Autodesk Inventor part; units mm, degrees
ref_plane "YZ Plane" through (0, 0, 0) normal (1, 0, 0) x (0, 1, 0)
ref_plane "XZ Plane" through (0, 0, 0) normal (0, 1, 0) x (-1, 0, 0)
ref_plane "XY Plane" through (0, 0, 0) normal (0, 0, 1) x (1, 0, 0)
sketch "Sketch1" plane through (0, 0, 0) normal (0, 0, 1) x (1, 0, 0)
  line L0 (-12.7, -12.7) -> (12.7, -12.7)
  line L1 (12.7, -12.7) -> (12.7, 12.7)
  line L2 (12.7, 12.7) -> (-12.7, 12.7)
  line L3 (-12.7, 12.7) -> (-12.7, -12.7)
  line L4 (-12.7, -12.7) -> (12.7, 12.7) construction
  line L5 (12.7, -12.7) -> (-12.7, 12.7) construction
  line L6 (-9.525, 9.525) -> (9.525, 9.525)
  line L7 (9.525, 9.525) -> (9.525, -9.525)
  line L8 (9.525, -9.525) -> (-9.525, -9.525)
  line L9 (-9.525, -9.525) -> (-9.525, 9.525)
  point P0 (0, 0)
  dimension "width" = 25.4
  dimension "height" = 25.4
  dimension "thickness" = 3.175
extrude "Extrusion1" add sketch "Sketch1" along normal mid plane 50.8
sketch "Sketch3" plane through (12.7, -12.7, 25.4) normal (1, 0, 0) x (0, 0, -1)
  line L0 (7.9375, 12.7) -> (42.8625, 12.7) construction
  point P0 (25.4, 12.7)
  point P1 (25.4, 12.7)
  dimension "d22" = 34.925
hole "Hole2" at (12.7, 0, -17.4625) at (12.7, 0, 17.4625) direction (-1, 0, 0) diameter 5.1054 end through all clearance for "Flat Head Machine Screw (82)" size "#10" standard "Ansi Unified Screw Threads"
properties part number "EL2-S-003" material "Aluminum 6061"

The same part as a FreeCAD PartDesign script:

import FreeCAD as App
import Part
import Sketcher
Q = App.Units.Quantity


def add_polygon(sketch, points):
    """Adds a closed chain of lines whose ends are joined by coincident constraints."""
    first, n = sketch.GeometryCount, len(points)
    for a, b in zip(points, points[1:] + points[:1]):
        sketch.addGeometry(Part.LineSegment(App.Vector(*a, 0), App.Vector(*b, 0)), False)
    for i in range(n):
        sketch.addConstraint(Sketcher.Constraint("Coincident", first + i, 2, first + (i + 1) % n, 1))

doc = App.newDocument("Part")
body = doc.addObject("PartDesign::Body", "Body")

# Sketch on XY plane
sketch1 = body.newObject("Sketcher::SketchObject", "Sketch")
sketch1.AttachmentSupport = (doc.getObject("XY_Plane"), [""])
sketch1.MapMode = "FlatFace"
add_polygon(sketch1, [(-13, 13), (-13, -13), (13, -13), (13, 13)])  # lines 0-3
add_polygon(sketch1, [(-10, -10), (-10, 10), (10, 10), (10, -10)])  # lines 4-7
sketch1.addConstraint([
    Sketcher.Constraint("Vertical", 0),
    Sketcher.Constraint("Horizontal", 1),
    Sketcher.Constraint("Vertical", 2),
    Sketcher.Constraint("Horizontal", 3),
    Sketcher.Constraint("Vertical", 4),
    Sketcher.Constraint("Horizontal", 5),
    Sketcher.Constraint("Vertical", 6),
    Sketcher.Constraint("Horizontal", 7),
    Sketcher.Constraint("Symmetric", 0, 2, 2, 2, -1, 1),
    Sketcher.Constraint("Symmetric", 4, 2, 6, 2, -1, 1),
    Sketcher.Constraint("Equal", 3, 0),
    Sketcher.Constraint("Equal", 7, 4),
    Sketcher.Constraint("DistanceX", 1, 1, 1, 2, Q("1 in")),
    Sketcher.Constraint("DistanceX", 3, 2, 4, 2, Q("0.125 in")),
])
pad1 = body.newObject("PartDesign::Pad", "Pad")
pad1.Profile = sketch1
pad1.Length = Q("2 in")
pad1.Midplane = True

# Sketch on YZ plane
sketch2 = body.newObject("Sketcher::SketchObject", "Sketch001")
sketch2.AttachmentSupport = (doc.getObject("YZ_Plane"), [""])
sketch2.MapMode = "FlatFace"
sketch2.AttachmentOffset = App.Placement(App.Vector(0, 0, 0.5 * 25.4), App.Rotation())
sketch2.addGeometry([
    Part.Circle(App.Vector(0, -17.5, 0), App.Vector(0, 0, 1), 2.6),
    Part.Circle(App.Vector(0, 17.5, 0), App.Vector(0, 0, 1), 2.6),
], False)
sketch2.addConstraint([
    Sketcher.Constraint("Equal", 0, 1),
    Sketcher.Constraint("Symmetric", 0, 3, 1, 3, -1, 1),
    Sketcher.Constraint("PointOnObject", 0, 3, -2),
    Sketcher.Constraint("Diameter", 0, Q("0.201 in")),
    Sketcher.Constraint("DistanceY", 0, 3, -1, 1, Q("0.6875 in")),
])
doc.recompute()
hole = body.newObject("PartDesign::Hole", "Hole")
hole.Profile = sketch2
hole.ThreadType = "None"
hole.Diameter = Q("0.201 in")
hole.DepthType = "ThroughAll"

doc.recompute()
